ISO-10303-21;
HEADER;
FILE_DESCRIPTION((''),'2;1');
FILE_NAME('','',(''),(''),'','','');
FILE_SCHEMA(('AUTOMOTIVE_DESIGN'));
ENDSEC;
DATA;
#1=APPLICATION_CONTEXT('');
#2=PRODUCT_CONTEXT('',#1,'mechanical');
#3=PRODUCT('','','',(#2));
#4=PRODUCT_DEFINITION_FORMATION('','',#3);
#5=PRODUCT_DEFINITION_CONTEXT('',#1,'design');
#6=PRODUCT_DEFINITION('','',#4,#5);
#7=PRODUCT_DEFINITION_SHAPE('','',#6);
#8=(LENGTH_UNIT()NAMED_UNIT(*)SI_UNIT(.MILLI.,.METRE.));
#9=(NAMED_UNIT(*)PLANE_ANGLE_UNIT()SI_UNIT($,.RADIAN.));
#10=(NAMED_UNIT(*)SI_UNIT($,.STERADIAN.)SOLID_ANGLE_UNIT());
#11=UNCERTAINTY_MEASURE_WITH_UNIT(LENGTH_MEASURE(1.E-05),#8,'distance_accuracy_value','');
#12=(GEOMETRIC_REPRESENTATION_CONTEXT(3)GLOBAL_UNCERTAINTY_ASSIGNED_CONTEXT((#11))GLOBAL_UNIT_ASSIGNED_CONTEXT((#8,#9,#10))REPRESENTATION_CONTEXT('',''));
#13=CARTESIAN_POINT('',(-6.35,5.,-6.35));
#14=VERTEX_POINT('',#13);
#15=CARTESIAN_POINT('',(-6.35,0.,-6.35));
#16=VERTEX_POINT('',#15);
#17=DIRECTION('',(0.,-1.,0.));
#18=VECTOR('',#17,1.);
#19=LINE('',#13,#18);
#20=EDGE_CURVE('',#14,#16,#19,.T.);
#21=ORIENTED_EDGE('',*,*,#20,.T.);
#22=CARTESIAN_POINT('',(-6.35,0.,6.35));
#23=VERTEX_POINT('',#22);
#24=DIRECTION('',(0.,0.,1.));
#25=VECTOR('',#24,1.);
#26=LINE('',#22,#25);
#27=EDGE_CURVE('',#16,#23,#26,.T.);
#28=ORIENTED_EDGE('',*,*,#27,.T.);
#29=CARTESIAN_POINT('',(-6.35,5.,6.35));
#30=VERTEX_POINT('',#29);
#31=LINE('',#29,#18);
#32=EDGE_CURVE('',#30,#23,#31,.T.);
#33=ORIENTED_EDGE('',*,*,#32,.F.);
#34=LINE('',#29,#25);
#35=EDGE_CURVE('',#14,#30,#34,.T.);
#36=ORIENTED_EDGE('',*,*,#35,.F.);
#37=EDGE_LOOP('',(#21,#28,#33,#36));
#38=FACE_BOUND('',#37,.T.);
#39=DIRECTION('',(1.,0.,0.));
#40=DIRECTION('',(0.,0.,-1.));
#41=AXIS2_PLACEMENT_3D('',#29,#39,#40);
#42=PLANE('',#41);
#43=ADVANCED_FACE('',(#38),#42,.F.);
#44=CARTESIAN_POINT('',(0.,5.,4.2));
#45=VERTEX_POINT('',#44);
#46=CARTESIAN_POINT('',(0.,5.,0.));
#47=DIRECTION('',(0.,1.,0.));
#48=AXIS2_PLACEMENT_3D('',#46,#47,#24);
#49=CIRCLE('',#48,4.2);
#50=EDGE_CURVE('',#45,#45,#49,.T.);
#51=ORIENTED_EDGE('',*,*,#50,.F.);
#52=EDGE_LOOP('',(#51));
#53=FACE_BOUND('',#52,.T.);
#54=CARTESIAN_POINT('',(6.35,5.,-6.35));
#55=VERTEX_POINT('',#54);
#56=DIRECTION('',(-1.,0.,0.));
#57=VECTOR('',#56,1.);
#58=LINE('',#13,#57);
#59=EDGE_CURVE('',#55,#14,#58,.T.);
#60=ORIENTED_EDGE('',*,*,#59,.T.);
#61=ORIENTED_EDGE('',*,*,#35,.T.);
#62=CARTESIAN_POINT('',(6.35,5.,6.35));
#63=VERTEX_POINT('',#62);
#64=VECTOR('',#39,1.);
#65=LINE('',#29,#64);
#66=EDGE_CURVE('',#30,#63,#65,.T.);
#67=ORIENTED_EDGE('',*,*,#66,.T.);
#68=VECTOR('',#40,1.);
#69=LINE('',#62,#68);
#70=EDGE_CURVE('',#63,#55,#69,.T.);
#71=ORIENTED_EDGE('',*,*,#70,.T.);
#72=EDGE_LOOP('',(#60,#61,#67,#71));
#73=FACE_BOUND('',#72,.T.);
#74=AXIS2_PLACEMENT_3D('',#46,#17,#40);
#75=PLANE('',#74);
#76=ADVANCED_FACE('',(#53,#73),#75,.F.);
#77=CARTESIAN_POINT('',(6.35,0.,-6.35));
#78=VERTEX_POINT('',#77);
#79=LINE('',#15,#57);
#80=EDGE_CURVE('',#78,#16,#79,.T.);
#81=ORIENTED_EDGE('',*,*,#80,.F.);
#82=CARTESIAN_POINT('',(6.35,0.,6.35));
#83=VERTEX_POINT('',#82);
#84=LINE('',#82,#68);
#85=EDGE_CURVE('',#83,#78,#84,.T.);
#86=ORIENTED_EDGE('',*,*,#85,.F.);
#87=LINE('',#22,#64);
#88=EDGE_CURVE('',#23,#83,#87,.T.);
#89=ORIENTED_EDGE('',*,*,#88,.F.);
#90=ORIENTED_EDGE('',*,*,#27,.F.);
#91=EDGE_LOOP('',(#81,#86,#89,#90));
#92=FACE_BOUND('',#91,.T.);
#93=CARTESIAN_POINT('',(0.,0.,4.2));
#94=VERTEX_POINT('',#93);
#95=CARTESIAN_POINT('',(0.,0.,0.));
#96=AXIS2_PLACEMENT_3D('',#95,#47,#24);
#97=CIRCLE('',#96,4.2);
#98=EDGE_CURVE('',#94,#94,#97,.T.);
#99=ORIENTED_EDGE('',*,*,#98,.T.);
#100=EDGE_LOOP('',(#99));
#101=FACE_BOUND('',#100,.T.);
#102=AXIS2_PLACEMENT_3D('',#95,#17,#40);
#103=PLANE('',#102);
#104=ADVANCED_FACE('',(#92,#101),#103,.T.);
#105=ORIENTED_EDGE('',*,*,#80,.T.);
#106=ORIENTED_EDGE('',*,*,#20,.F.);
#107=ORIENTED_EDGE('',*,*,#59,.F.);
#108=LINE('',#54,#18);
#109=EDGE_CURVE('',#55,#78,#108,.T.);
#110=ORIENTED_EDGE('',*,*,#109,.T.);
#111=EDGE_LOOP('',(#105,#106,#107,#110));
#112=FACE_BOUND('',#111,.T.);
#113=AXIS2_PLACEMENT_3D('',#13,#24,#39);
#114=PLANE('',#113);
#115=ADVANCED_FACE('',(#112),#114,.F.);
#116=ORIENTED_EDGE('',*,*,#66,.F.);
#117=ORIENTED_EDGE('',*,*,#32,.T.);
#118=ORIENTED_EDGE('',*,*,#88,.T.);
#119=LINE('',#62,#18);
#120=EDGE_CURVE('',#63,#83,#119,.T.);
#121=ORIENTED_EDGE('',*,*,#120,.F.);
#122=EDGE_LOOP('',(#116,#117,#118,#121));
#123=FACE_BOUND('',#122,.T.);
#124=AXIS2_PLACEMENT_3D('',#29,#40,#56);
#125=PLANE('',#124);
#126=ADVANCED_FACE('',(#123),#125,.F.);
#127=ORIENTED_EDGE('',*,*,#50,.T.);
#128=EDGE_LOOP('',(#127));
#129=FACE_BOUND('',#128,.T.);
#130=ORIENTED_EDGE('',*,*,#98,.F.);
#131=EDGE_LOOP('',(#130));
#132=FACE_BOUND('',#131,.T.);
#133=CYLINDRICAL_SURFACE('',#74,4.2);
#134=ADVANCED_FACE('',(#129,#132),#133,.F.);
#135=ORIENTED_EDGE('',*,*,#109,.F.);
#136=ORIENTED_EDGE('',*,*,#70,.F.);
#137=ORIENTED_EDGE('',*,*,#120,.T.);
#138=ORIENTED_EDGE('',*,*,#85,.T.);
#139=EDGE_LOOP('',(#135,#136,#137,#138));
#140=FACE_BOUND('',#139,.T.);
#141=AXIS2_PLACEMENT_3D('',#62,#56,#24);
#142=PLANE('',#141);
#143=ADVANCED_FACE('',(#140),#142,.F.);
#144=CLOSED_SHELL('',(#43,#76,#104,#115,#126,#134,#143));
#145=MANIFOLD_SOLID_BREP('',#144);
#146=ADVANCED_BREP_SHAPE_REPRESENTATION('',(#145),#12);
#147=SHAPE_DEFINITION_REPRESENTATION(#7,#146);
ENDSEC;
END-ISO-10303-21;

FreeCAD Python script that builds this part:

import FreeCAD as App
import Part
import Sketcher

doc = App.newDocument("Part")
body = doc.addObject("PartDesign::Body", "Body")

# Sketch on XZ plane
sketch1 = body.newObject("Sketcher::SketchObject", "Sketch")
sketch1.AttachmentSupport = (doc.getObject("XZ_Plane"), [""])
sketch1.MapMode = "FlatFace"
sketch1.addGeometry([
    Part.LineSegment(App.Vector(-6.35, -6.35, 0), App.Vector(-6.35, 6.35, 0)),  # 0
    Part.LineSegment(App.Vector(-6.35, 6.35, 0), App.Vector(6.35, 6.35, 0)),  # 1
    Part.LineSegment(App.Vector(6.35, 6.35, 0), App.Vector(6.35, -6.35, 0)),  # 2
    Part.LineSegment(App.Vector(6.35, -6.35, 0), App.Vector(-6.35, -6.35, 0)),  # 3
    Part.Circle(App.Vector(0, 0, 0), App.Vector(0, 0, 1), 4.2),  # 4
], False)
sketch1.addConstraint([
    Sketcher.Constraint("Coincident", 0, 2, 1, 1),
    Sketcher.Constraint("Coincident", 1, 2, 2, 1),
    Sketcher.Constraint("Coincident", 2, 2, 3, 1),
    Sketcher.Constraint("Coincident", 3, 2, 0, 1),
    Sketcher.Constraint("Vertical", 0),
    Sketcher.Constraint("Horizontal", 1),
    Sketcher.Constraint("Vertical", 2),
    Sketcher.Constraint("Horizontal", 3),
    Sketcher.Constraint("Coincident", 4, 3, -1, 1),
    Sketcher.Constraint("Symmetric", 0, 2, 2, 2, -1, 1),
    Sketcher.Constraint("Equal", 3, 0),
    Sketcher.Constraint("Diameter", 4, 8.4),
    Sketcher.Constraint("DistanceX", 1, 1, 1, 2, 12.7),
])
pad1 = body.newObject("PartDesign::Pad", "Pad")
pad1.Profile = sketch1
pad1.Length = 5
pad1.Reversed = True

doc.recompute()
